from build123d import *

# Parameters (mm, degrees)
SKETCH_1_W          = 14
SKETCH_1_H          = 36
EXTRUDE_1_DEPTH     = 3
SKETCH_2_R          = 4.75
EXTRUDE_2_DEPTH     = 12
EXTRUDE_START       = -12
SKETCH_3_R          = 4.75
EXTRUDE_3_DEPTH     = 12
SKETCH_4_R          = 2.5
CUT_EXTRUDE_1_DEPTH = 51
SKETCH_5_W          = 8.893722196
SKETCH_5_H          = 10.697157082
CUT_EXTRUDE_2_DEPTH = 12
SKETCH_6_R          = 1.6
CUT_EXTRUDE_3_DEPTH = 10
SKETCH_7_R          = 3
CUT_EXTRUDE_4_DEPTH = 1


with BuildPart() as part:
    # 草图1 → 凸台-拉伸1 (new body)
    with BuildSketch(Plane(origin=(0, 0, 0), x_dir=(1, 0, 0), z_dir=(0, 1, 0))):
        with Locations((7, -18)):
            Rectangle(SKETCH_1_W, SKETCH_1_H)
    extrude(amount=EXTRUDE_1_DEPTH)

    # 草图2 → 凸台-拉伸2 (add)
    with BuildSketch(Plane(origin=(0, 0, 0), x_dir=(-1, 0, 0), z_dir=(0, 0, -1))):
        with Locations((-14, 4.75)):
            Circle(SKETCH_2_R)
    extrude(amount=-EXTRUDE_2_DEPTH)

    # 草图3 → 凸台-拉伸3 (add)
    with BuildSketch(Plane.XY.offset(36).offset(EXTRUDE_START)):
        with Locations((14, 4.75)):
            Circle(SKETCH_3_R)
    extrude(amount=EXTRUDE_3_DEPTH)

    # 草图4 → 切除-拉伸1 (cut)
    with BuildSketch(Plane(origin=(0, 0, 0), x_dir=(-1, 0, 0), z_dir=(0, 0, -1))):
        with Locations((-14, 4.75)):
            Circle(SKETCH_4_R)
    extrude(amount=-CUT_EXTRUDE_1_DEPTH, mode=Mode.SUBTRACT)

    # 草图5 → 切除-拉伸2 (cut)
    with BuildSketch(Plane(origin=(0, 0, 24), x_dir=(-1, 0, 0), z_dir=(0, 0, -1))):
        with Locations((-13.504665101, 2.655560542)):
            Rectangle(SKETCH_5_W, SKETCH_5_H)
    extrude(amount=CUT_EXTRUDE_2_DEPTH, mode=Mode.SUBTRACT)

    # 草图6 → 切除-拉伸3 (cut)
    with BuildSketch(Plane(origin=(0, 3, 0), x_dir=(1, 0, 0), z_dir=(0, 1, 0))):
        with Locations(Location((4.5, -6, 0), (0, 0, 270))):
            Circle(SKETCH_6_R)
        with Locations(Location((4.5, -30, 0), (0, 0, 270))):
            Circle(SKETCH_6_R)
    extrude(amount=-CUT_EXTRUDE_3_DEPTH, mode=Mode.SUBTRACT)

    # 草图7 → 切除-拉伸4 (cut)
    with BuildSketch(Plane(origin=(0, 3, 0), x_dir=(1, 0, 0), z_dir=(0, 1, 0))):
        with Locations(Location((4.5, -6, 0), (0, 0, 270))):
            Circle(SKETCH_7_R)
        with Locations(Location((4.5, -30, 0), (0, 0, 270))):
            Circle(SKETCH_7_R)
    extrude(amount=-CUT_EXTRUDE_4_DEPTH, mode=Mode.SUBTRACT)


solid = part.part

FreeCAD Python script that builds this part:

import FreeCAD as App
import Part
import Sketcher
from FreeCAD import Vector

doc = App.newDocument("Part")
body = doc.addObject("PartDesign::Body", "Body")

sketch1 = body.newObject("Sketcher::SketchObject", "Sketch")
sketch1.AttachmentSupport = (doc.getObject("XZ_Plane"), [""])
sketch1.MapMode = "FlatFace"
sketch1.addGeometry([
    Part.LineSegment(Vector(0, 0, 0), Vector(0, 36, 0)),
    Part.LineSegment(Vector(0, 36, 0), Vector(14, 36, 0)),
    Part.LineSegment(Vector(14, 36, 0), Vector(14, 0, 0)),
    Part.LineSegment(Vector(14, 0, 0), Vector(0, 0, 0)),
], False)
sketch1.addConstraint([
    Sketcher.Constraint("Coincident", 0, 2, 1, 1),
    Sketcher.Constraint("Coincident", 1, 2, 2, 1),
    Sketcher.Constraint("Coincident", 2, 2, 3, 1),
    Sketcher.Constraint("Coincident", 3, 2, 0, 1),
    Sketcher.Constraint("Vertical", 0),
    Sketcher.Constraint("Horizontal", 1),
    Sketcher.Constraint("Vertical", 2),
    Sketcher.Constraint("Horizontal", 3),
    Sketcher.Constraint("Coincident", 3, 2, -1, 1),
    Sketcher.Constraint("DistanceX", 1, 1, 1, 2, 14.0),
    Sketcher.Constraint("DistanceY", 0, 1, 0, 2, 36.0),
])
pad1 = body.newObject("PartDesign::Pad", "Pad")
pad1.Profile = sketch1
pad1.Length = 3
pad1.Reversed = True

sketch2 = body.newObject("Sketcher::SketchObject", "Sketch001")
sketch2.AttachmentSupport = (doc.getObject("XY_Plane"), [""])
sketch2.MapMode = "FlatFace"
sketch2.addGeometry(Part.Circle(Vector(14, 4.75, 0), Vector(0, 0, 1), 4.75), False)
sketch2.addConstraint([
    Sketcher.Constraint("Diameter", 0, 9.5),
    Sketcher.Constraint("DistanceX", -1, 1, 0, 3, 14.0),
    Sketcher.Constraint("DistanceY", -1, 1, 0, 3, 4.75),
])
pad2 = body.newObject("PartDesign::Pad", "Pad001")
pad2.Profile = sketch2
pad2.Length = 12

sketch3 = body.newObject("Sketcher::SketchObject", "Sketch002")
sketch3.AttachmentSupport = (doc.getObject("XY_Plane"), [""])
sketch3.MapMode = "FlatFace"
sketch3.AttachmentOffset = App.Placement(Vector(0, 0, 24), App.Rotation())
sketch3.addGeometry(Part.Circle(Vector(14, 4.75, 0), Vector(0, 0, 1), 4.75), False)
sketch3.addConstraint([
    Sketcher.Constraint("Diameter", 0, 9.5),
    Sketcher.Constraint("DistanceX", -1, 1, 0, 3, 14.0),
    Sketcher.Constraint("DistanceY", -1, 1, 0, 3, 4.75),
])
pad3 = body.newObject("PartDesign::Pad", "Pad002")
pad3.Profile = sketch3
pad3.Length = 12

sketch4 = body.newObject("Sketcher::SketchObject", "Sketch003")
sketch4.AttachmentSupport = (doc.getObject("XY_Plane"), [""])
sketch4.MapMode = "FlatFace"
sketch4.addGeometry(Part.Circle(Vector(14, 4.75, 0), Vector(0, 0, 1), 2.5), False)
sketch4.addConstraint([
    Sketcher.Constraint("Diameter", 0, 5.0),
    Sketcher.Constraint("DistanceX", -1, 1, 0, 3, 14.0),
    Sketcher.Constraint("DistanceY", -1, 1, 0, 3, 4.75),
])
pocket1 = body.newObject("PartDesign::Pocket", "Pocket")
pocket1.Profile = sketch4
pocket1.Length = 51
pocket1.Reversed = True

sketch5 = body.newObject("Sketcher::SketchObject", "Sketch004")
sketch5.AttachmentSupport = (doc.getObject("XY_Plane"), [""])
sketch5.MapMode = "FlatFace"
sketch5.AttachmentOffset = App.Placement(Vector(0, 0, 24), App.Rotation())
sketch5.addGeometry([
    Part.LineSegment(Vector(17.951526, 8.004139, 0), Vector(17.951526, -2.693018, 0)),
    Part.LineSegment(Vector(17.951526, -2.693018, 0), Vector(9.057804, -2.693018, 0)),
    Part.LineSegment(Vector(9.057804, -2.693018, 0), Vector(9.057804, 8.004139, 0)),
    Part.LineSegment(Vector(9.057804, 8.004139, 0), Vector(17.951526, 8.004139, 0)),
], False)
sketch5.addConstraint([
    Sketcher.Constraint("Coincident", 0, 2, 1, 1),
    Sketcher.Constraint("Coincident", 1, 2, 2, 1),
    Sketcher.Constraint("Coincident", 2, 2, 3, 1),
    Sketcher.Constraint("Coincident", 3, 2, 0, 1),
    Sketcher.Constraint("Vertical", 0),
    Sketcher.Constraint("Horizontal", 1),
    Sketcher.Constraint("Vertical", 2),
    Sketcher.Constraint("Horizontal", 3),
    Sketcher.Constraint("DistanceX", 1, 2, 1, 1, 8.893722),
    Sketcher.Constraint("DistanceY", 0, 2, 0, 1, 10.697157),
    Sketcher.Constraint("DistanceY", -1, 1, 2, 2, 8.004139),
    Sketcher.Constraint("DistanceX", -1, 1, 0, 2, 17.951526),
])
pocket2 = body.newObject("PartDesign::Pocket", "Pocket001")
pocket2.Profile = sketch5
pocket2.Length = 12

sketch6 = body.newObject("Sketcher::SketchObject", "Sketch005")
sketch6.AttachmentSupport = (doc.getObject("XZ_Plane"), [""])
sketch6.MapMode = "FlatFace"
sketch6.AttachmentOffset = App.Placement(Vector(0, 0, -3), App.Rotation())
sketch6.addGeometry([
    Part.Circle(Vector(4.5, 6, 0), Vector(0, 0, 1), 1.6),
    Part.Circle(Vector(4.5, 30, 0), Vector(0, 0, 1), 1.6),
], False)
sketch6.addConstraint([
    Sketcher.Constraint("Equal", 0, 1),
    Sketcher.Constraint("Vertical", 0, 3, 1, 3),
    Sketcher.Constraint("Diameter", 0, 3.2),
    Sketcher.Constraint("DistanceY", -1, 1, 0, 3, 6.0),
    Sketcher.Constraint("DistanceY", -1, 1, 1, 3, 30.0),
    Sketcher.Constraint("DistanceX", -1, 1, 0, 3, 4.5),
])
pocket3 = body.newObject("PartDesign::Pocket", "Pocket002")
pocket3.Profile = sketch6
pocket3.Length = 10
pocket3.Reversed = True

sketch7 = body.newObject("Sketcher::SketchObject", "Sketch006")
sketch7.AttachmentSupport = (doc.getObject("XZ_Plane"), [""])
sketch7.MapMode = "FlatFace"
sketch7.AttachmentOffset = App.Placement(Vector(0, 0, -3), App.Rotation())
sketch7.addGeometry([
    Part.Circle(Vector(4.5, 6, 0), Vector(0, 0, 1), 3),
    Part.Circle(Vector(4.5, 30, 0), Vector(0, 0, 1), 3),
], False)
sketch7.addConstraint([
    Sketcher.Constraint("Equal", 0, 1),
    Sketcher.Constraint("Vertical", 0, 3, 1, 3),
    Sketcher.Constraint("Diameter", 0, 6.0),
    Sketcher.Constraint("DistanceY", -1, 1, 0, 3, 6.0),
    Sketcher.Constraint("DistanceY", -1, 1, 1, 3, 30.0),
    Sketcher.Constraint("DistanceX", -1, 1, 0, 3, 4.5),
])
pocket4 = body.newObject("PartDesign::Pocket", "Pocket003")
pocket4.Profile = sketch7
pocket4.Length = 1
pocket4.Reversed = True

doc.recompute()
